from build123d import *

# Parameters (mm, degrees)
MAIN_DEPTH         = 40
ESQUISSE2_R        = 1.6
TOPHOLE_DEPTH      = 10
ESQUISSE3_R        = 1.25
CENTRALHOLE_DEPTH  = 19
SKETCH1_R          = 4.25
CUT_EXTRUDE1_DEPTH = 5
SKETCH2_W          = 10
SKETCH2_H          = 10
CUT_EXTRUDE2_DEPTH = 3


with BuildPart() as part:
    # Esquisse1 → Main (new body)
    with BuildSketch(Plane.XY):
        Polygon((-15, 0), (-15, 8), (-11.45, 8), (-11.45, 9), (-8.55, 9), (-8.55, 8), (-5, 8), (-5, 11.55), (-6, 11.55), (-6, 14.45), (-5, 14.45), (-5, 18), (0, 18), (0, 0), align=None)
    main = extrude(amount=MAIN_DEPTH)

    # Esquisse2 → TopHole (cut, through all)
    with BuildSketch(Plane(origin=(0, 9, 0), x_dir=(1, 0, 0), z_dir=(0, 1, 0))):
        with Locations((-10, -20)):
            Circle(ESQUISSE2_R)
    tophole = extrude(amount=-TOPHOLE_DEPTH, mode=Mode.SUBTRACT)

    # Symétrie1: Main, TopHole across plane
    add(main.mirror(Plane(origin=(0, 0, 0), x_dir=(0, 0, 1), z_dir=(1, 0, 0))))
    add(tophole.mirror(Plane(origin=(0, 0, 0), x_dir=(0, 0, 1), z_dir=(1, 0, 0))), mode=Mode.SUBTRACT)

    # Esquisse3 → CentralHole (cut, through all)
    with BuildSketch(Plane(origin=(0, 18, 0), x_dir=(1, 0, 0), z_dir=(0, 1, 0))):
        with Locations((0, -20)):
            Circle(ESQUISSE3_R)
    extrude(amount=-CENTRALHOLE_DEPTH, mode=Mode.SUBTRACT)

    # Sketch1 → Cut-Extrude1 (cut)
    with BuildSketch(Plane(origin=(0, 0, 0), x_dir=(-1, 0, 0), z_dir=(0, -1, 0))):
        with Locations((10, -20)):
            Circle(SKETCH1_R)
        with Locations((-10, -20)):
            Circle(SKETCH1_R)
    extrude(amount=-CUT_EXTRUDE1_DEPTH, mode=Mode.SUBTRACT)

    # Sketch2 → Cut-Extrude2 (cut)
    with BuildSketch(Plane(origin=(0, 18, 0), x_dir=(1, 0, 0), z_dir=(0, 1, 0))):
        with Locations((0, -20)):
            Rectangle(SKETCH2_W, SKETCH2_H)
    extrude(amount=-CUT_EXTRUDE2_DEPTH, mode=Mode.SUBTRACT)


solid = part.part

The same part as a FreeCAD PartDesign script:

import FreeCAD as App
import Part
import Sketcher
from FreeCAD import Vector
Q = App.Units.Quantity


def add_polygon(sketch, points):
    """Adds a closed chain of lines whose ends are joined by coincident constraints."""
    first, n = sketch.GeometryCount, len(points)
    for a, b in zip(points, points[1:] + points[:1]):
        sketch.addGeometry(Part.LineSegment(App.Vector(*a, 0), App.Vector(*b, 0)), False)
    for i in range(n):
        sketch.addConstraint(Sketcher.Constraint("Coincident", first + i, 2, first + (i + 1) % n, 1))

doc = App.newDocument("Part")
body = doc.addObject("PartDesign::Body", "Body")

# Sketch on XY plane
sketch1 = body.newObject("Sketcher::SketchObject", "Sketch")
sketch1.AttachmentSupport = (doc.getObject("XY_Plane"), [""])
sketch1.MapMode = "FlatFace"
add_polygon(sketch1, [(-15, 8), (-15, 0), (0, 0), (0, 18), (-5, 18), (-5, 14.4), (-6, 14.4), (-6, 11.6), (-5, 11.6), (-5, 8), (-8.6, 8), (-8.6, 9), (-11.4, 9), (-11.4, 8)])  # lines 0-13
sketch1.addConstraint(Sketcher.Constraint("Vertical", 0))
sketch1.addConstraint(Sketcher.Constraint("Horizontal", 1))
sketch1.addConstraint(Sketcher.Constraint("Vertical", 2))
sketch1.addConstraint(Sketcher.Constraint("Horizontal", 3))
sketch1.addConstraint(Sketcher.Constraint("Vertical", 4))
sketch1.addConstraint(Sketcher.Constraint("Horizontal", 5))
sketch1.addConstraint(Sketcher.Constraint("Vertical", 6))
sketch1.addConstraint(Sketcher.Constraint("Horizontal", 7))
sketch1.addConstraint(Sketcher.Constraint("Vertical", 8))
sketch1.addConstraint(Sketcher.Constraint("Horizontal", 9))
sketch1.addConstraint(Sketcher.Constraint("Vertical", 10))
sketch1.addConstraint(Sketcher.Constraint("Horizontal", 11))
sketch1.addConstraint(Sketcher.Constraint("Vertical", 12))
sketch1.addConstraint(Sketcher.Constraint("Horizontal", 13))
sketch1.addConstraint(Sketcher.Constraint("Coincident", 1, 2, -1, 1))
sketch1.addConstraint(Sketcher.Constraint("Horizontal", 9, 2, 12, 2))
sketch1.addConstraint(Sketcher.Constraint("Vertical", 4, 2, 7, 2))
sketch1.addConstraint(Sketcher.Constraint("Equal", 9, 13))
sketch1.addConstraint(Sketcher.Constraint("Equal", 13, 4))
sketch1.addConstraint(Sketcher.Constraint("Equal", 11, 6))
sketch1.addConstraint(Sketcher.Constraint("Equal", 4, 8))
sketch1.addConstraint(Sketcher.Constraint("Equal", 7, 10))
sketch1.addConstraint(Sketcher.Constraint("DistanceX", 1, 1, 1, 2, Q("15 mm")))
sketch1.addConstraint(Sketcher.Constraint("DistanceX", 3, 2, 3, 1, Q("5 mm")))
sketch1.addConstraint(Sketcher.Constraint("DistanceX", 5, 2, 5, 1, Q("1 mm")))
sketch1.addConstraint(Sketcher.Constraint("DistanceY", 0, 2, 0, 1, Q("8 mm")))
sketch1.addConstraint(Sketcher.Constraint("DistanceX", 11, 2, 11, 1, Q("2.9 mm")))
pad1 = body.newObject("PartDesign::Pad", "Pad")
pad1.Profile = sketch1
pad1.Length = 40

# Sketch on XZ plane
sketch2 = body.newObject("Sketcher::SketchObject", "Sketch001")
sketch2.AttachmentSupport = (doc.getObject("XZ_Plane"), [""])
sketch2.MapMode = "FlatFace"
sketch2.AttachmentOffset = App.Placement(Vector(0, 0, -9), App.Rotation())
sketch2.addGeometry(Part.Circle(Vector(-10, 20, 0), Vector(0, 0, 1), 1.6), False)
sketch2.addConstraint(Sketcher.Constraint("Diameter", 0, Q("3.2 mm")))
sketch2.addConstraint(Sketcher.Constraint("DistanceX", 0, 3, -1, 1, Q("10 mm")))
sketch2.addConstraint(Sketcher.Constraint("DistanceY", -1, 1, 0, 3, Q("20 mm")))
pocket1 = body.newObject("PartDesign::Pocket", "Pocket")
pocket1.Profile = sketch2
pocket1.Type = "ThroughAll"
pocket1.Reversed = True
doc.recompute()

mirrored = body.newObject("PartDesign::Mirrored", "Mirrored")
mirrored.Originals = [pad1, pocket1]
mirrored.MirrorPlane = (doc.getObject("YZ_Plane"), [""])
body.Tip = mirrored

# Sketch on XZ plane
sketch3 = body.newObject("Sketcher::SketchObject", "Sketch002")
sketch3.AttachmentSupport = (doc.getObject("XZ_Plane"), [""])
sketch3.MapMode = "FlatFace"
sketch3.AttachmentOffset = App.Placement(Vector(0, 0, -18), App.Rotation())
sketch3.addGeometry(Part.Circle(Vector(0, 20, 0), Vector(0, 0, 1), 1.2), False)
sketch3.addConstraint(Sketcher.Constraint("PointOnObject", 0, 3, -2))
sketch3.addConstraint(Sketcher.Constraint("Diameter", 0, Q("2.5 mm")))
sketch3.addConstraint(Sketcher.Constraint("DistanceY", -1, 1, 0, 3, Q("20 mm")))
pocket2 = body.newObject("PartDesign::Pocket", "Pocket001")
pocket2.Profile = sketch3
pocket2.Type = "ThroughAll"
pocket2.Reversed = True

# Sketch on XZ plane
sketch4 = body.newObject("Sketcher::SketchObject", "Sketch003")
sketch4.AttachmentSupport = (doc.getObject("XZ_Plane"), [""])
sketch4.MapMode = "FlatFace"
sketch4.addGeometry(Part.Circle(Vector(-10, 20, 0), Vector(0, 0, 1), 4.2), False)
sketch4.addGeometry(Part.Circle(Vector(10, 20, 0), Vector(0, 0, 1), 4.2), False)
sketch4.addConstraint(Sketcher.Constraint("Equal", 0, 1))
sketch4.addConstraint(Sketcher.Constraint("Symmetric", 0, 3, 1, 3, -2))
sketch4.addConstraint(Sketcher.Constraint("Diameter", 0, Q("8.5 mm")))
sketch4.addConstraint(Sketcher.Constraint("DistanceX", 0, 3, -1, 1, Q("10 mm")))
sketch4.addConstraint(Sketcher.Constraint("DistanceY", -1, 1, 0, 3, Q("20 mm")))
pocket3 = body.newObject("PartDesign::Pocket", "Pocket002")
pocket3.Profile = sketch4
pocket3.Length = 5

# Sketch on XZ plane
sketch5 = body.newObject("Sketcher::SketchObject", "Sketch004")
sketch5.AttachmentSupport = (doc.getObject("XZ_Plane"), [""])
sketch5.MapMode = "FlatFace"
sketch5.AttachmentOffset = App.Placement(Vector(0, 0, -18), App.Rotation())
add_polygon(sketch5, [(-5, 15), (-5, 25), (5, 25), (5, 15)])  # lines 0-3
sketch5.addConstraint(Sketcher.Constraint("Vertical", 0))
sketch5.addConstraint(Sketcher.Constraint("Horizontal", 1))
sketch5.addConstraint(Sketcher.Constraint("Vertical", 2))
sketch5.addConstraint(Sketcher.Constraint("Horizontal", 3))
sketch5.addConstraint(Sketcher.Constraint("Equal", 3, 0))
sketch5.addConstraint(Sketcher.Constraint("DistanceX", 1, 1, 1, 2, Q("10 mm")))
sketch5.addConstraint(Sketcher.Constraint("DistanceX", 0, 2, -1, 1, Q("5 mm")))
sketch5.addConstraint(Sketcher.Constraint("DistanceY", -1, 1, 0, 2, Q("25 mm")))
pocket4 = body.newObject("PartDesign::Pocket", "Pocket003")
pocket4.Profile = sketch5
pocket4.Length = 3
pocket4.Reversed = True

doc.recompute()
